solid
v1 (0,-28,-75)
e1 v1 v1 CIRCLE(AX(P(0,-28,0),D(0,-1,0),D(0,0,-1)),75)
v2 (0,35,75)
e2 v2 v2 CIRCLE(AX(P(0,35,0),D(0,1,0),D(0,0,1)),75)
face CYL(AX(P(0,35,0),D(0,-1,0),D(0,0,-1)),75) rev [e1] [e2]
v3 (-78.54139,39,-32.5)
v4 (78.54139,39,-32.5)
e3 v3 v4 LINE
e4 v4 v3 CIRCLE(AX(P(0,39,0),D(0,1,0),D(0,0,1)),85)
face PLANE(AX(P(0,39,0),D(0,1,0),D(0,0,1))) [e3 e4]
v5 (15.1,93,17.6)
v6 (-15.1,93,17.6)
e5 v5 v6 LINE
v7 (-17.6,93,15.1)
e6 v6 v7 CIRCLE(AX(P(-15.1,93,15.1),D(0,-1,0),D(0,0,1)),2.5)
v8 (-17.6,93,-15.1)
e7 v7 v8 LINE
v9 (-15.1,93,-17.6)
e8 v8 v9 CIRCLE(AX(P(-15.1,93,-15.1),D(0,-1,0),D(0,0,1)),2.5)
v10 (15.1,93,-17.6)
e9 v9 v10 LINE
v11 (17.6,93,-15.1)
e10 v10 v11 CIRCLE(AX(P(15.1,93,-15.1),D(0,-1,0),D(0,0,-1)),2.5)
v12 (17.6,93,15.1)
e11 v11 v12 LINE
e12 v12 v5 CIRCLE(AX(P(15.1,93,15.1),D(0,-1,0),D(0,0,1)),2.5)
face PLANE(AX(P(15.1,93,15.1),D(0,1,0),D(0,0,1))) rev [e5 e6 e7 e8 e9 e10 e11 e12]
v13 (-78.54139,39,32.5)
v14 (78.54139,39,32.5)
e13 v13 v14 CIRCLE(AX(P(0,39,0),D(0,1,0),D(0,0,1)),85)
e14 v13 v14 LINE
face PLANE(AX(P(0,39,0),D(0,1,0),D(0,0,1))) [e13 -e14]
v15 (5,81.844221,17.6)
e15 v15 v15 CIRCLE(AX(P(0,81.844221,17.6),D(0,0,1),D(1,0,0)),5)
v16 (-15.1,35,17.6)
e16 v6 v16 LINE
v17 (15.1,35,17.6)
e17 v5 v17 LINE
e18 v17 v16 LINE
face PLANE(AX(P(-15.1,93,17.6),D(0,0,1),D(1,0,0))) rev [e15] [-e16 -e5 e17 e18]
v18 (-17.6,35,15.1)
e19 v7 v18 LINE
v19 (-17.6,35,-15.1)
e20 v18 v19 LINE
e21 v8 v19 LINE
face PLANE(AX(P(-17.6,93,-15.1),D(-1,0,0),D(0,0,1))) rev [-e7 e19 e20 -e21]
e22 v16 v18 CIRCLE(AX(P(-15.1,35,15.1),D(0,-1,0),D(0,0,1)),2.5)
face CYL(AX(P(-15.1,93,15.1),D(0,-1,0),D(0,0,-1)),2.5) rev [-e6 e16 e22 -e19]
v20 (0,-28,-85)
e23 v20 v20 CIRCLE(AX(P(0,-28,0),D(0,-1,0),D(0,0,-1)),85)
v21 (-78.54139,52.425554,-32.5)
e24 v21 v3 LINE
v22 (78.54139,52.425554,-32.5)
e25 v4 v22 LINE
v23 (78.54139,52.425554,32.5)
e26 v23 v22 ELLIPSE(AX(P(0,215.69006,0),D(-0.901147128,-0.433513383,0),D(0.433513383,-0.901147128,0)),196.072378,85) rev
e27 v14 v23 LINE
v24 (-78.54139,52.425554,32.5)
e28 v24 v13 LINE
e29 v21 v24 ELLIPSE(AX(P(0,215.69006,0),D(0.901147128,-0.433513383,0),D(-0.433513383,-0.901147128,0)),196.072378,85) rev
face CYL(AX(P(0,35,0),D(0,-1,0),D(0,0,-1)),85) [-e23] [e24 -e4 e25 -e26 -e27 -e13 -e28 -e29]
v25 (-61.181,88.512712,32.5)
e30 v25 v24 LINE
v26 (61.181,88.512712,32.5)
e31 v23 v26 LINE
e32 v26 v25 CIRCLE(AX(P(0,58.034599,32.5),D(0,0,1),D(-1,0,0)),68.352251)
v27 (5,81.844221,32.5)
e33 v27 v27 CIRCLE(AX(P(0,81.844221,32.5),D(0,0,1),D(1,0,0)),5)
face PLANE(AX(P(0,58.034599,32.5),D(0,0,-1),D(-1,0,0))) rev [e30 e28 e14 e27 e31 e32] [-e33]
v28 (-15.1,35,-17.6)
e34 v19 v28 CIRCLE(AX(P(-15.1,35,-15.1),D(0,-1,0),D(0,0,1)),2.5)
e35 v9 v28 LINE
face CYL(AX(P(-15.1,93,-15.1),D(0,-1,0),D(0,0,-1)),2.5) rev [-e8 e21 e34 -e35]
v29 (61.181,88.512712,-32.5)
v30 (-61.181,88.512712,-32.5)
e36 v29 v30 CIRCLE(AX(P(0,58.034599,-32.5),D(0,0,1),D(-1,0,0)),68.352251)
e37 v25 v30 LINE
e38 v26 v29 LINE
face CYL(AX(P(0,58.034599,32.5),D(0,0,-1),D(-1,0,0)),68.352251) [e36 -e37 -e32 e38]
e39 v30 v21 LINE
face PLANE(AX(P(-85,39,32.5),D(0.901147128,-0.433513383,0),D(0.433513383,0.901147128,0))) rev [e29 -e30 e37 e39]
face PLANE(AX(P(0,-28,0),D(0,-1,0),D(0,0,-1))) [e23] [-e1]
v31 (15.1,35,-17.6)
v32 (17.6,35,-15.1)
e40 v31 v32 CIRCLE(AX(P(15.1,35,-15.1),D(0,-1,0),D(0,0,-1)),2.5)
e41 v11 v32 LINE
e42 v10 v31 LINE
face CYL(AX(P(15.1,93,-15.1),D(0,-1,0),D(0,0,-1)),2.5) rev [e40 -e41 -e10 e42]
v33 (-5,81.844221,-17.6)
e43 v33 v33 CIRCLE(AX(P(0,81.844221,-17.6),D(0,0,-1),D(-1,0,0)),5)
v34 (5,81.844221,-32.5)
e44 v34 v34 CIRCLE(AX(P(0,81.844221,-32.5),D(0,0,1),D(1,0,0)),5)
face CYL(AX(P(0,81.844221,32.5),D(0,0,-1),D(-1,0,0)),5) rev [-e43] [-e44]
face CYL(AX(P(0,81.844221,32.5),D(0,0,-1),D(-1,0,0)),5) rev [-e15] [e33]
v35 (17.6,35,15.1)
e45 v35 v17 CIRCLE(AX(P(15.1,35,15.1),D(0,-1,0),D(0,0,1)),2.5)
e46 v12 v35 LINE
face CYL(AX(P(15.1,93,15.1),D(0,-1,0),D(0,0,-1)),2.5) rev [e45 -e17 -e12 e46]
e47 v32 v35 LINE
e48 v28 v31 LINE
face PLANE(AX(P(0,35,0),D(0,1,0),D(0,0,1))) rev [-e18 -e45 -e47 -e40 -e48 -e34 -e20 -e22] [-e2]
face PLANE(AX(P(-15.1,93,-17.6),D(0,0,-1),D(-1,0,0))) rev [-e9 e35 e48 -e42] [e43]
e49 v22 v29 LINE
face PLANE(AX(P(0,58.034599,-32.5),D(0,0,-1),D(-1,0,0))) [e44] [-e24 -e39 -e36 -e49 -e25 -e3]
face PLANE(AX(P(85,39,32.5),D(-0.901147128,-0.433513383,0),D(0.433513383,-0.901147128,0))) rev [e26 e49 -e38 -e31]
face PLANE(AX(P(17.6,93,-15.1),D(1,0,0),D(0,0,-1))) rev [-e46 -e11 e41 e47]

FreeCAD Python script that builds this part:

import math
import FreeCAD as App
import Part
import Sketcher
Q = App.Units.Quantity

doc = App.newDocument("Part")
body = doc.addObject("PartDesign::Body", "Body")

# Sketch on XZ plane
sketch1 = body.newObject("Sketcher::SketchObject", "Sketch")
sketch1.AttachmentSupport = (doc.getObject("XZ_Plane"), [""])
sketch1.MapMode = "FlatFace"
sketch1.addGeometry([
    Part.Circle(App.Vector(0, 0, 0), App.Vector(0, 0, 1), 85),
    Part.Circle(App.Vector(0, 0, 0), App.Vector(0, 0, 1), 75),
], False)
sketch1.addConstraint([
    Sketcher.Constraint("Coincident", 0, 3, -1, 1),
    Sketcher.Constraint("Coincident", 1, 3, -1, 1),
    Sketcher.Constraint("Diameter", 0, Q("170 mm")),
    Sketcher.Constraint("Diameter", 1, Q("150 mm")),
])
pad1 = body.newObject("PartDesign::Pad", "Pad")
pad1.Profile = sketch1
pad1.Length = 35
pad1.Reversed = True

# Sketch on XZ plane
sketch2 = body.newObject("Sketcher::SketchObject", "Sketch001")
sketch2.AttachmentSupport = (doc.getObject("XZ_Plane"), [""])
sketch2.MapMode = "FlatFace"
sketch2.AttachmentOffset = App.Placement(App.Vector(0, 0, -35), App.Rotation())
sketch2.addGeometry(Part.Circle(App.Vector(0, 0, 0), App.Vector(0, 0, 1), 85), False)
sketch2.addConstraint([
    Sketcher.Constraint("Coincident", 0, 3, -1, 1),
    Sketcher.Constraint("Diameter", 0, Q("170 mm")),
])
pad2 = body.newObject("PartDesign::Pad", "Pad001")
pad2.Profile = sketch2
pad2.Length = 4
pad2.Reversed = True

# Sketch on XY plane
sketch3 = body.newObject("Sketcher::SketchObject", "Sketch002")
sketch3.AttachmentSupport = (doc.getObject("XY_Plane"), [""])
sketch3.MapMode = "FlatFace"
sketch3.addGeometry([
    Part.LineSegment(App.Vector(-61, 89, 0), App.Vector(-85, 39, 0)),  # 0
    Part.LineSegment(App.Vector(-85, 39, 0), App.Vector(85, 39, 0)),  # 1
    Part.LineSegment(App.Vector(85, 39, 0), App.Vector(61, 89, 0)),  # 2
    Part.ArcOfCircle(Part.Circle(App.Vector(0, 58, 0), App.Vector(0, 0, 1), 68), math.radians(26), math.radians(154)),  # 3
    Part.Circle(App.Vector(0, 82, 0), App.Vector(0, 0, 1), 5),  # 4
], False)
sketch3.addConstraint([
    Sketcher.Constraint("Coincident", 0, 2, 1, 1),
    Sketcher.Constraint("Coincident", 1, 2, 2, 1),
    Sketcher.Constraint("Coincident", 2, 2, 3, 1),
    Sketcher.Constraint("Coincident", 3, 2, 0, 1),
    Sketcher.Constraint("Horizontal", 1),
    Sketcher.Constraint("Symmetric", 2, 2, 3, 2, -2),
    Sketcher.Constraint("PointOnObject", 4, 3, -2),
    Sketcher.Constraint("Equal", 0, 2),
    Sketcher.Constraint("Diameter", 4, Q("10 mm")),
    Sketcher.Constraint("DistanceX", 1, 1, 1, 2, Q("170 mm")),
    Sketcher.Constraint("DistanceY", -1, 1, 0, 2, Q("39 mm")),
    Sketcher.Constraint("Radius", 3, Q("68.352251 mm")),
    Sketcher.Constraint("DistanceX", -1, 1, 2, 2, Q("61.181 mm")),
    Sketcher.Constraint("DistanceY", -1, 1, 3, 3, Q("58.034599 mm")),
    Sketcher.Constraint("DistanceY", -1, 1, 4, 3, Q("81.844221 mm")),
])
pad3 = body.newObject("PartDesign::Pad", "Pad002")
pad3.Profile = sketch3
pad3.Length = 65
pad3.Midplane = True

# Sketch on XZ plane
sketch4 = body.newObject("Sketcher::SketchObject", "Sketch003")
sketch4.AttachmentSupport = (doc.getObject("XZ_Plane"), [""])
sketch4.MapMode = "FlatFace"
sketch4.AttachmentOffset = App.Placement(App.Vector(0, 0, -39), App.Rotation())
sketch4.addGeometry([
    Part.Circle(App.Vector(0, 0, 0), App.Vector(0, 0, 1), 96),
    Part.Circle(App.Vector(0, 0, 0), App.Vector(0, 0, 1), 85),
], False)
sketch4.addConstraint([
    Sketcher.Constraint("Coincident", 0, 3, -1, 1),
    Sketcher.Constraint("Coincident", 1, 3, -1, 1),
    Sketcher.Constraint("Diameter", 1, Q("170 mm")),
    Sketcher.Constraint("Diameter", 0, Q("191.477475 mm")),
])
pocket1 = body.newObject("PartDesign::Pocket", "Pocket")
pocket1.Profile = sketch4
pocket1.Length = 67

# Sketch on XZ plane
sketch5 = body.newObject("Sketcher::SketchObject", "Sketch004")
sketch5.AttachmentSupport = (doc.getObject("XZ_Plane"), [""])
sketch5.MapMode = "FlatFace"
sketch5.AttachmentOffset = App.Placement(App.Vector(0, 0, -35), App.Rotation())
sketch5.addGeometry([
    Part.LineSegment(App.Vector(-15.1, -17.6, 0), App.Vector(15.1, -17.6, 0)),  # 0
    Part.ArcOfCircle(Part.Circle(App.Vector(15.1, -15.1, 0), App.Vector(0, 0, 1), 2.5), math.radians(-90), math.radians(0)),  # 1
    Part.LineSegment(App.Vector(17.6, -15.1, 0), App.Vector(17.6, 15.1, 0)),  # 2
    Part.ArcOfCircle(Part.Circle(App.Vector(15.1, 15.1, 0), App.Vector(0, 0, 1), 2.5), math.radians(0), math.radians(90)),  # 3
    Part.LineSegment(App.Vector(15.1, 17.6, 0), App.Vector(-15.1, 17.6, 0)),  # 4
    Part.ArcOfCircle(Part.Circle(App.Vector(-15.1, 15.1, 0), App.Vector(0, 0, 1), 2.5), math.radians(90), math.radians(180)),  # 5
    Part.LineSegment(App.Vector(-17.6, 15.1, 0), App.Vector(-17.6, -15.1, 0)),  # 6
    Part.ArcOfCircle(Part.Circle(App.Vector(-15.1, -15.1, 0), App.Vector(0, 0, 1), 2.5), math.radians(180), math.radians(270)),  # 7
], False)
sketch5.addConstraint([
    Sketcher.Constraint("Tangent", 0, 2, 1, 1),
    Sketcher.Constraint("Tangent", 1, 2, 2, 1),
    Sketcher.Constraint("Tangent", 2, 2, 3, 1),
    Sketcher.Constraint("Tangent", 3, 2, 4, 1),
    Sketcher.Constraint("Tangent", 4, 2, 5, 1),
    Sketcher.Constraint("Tangent", 5, 2, 6, 1),
    Sketcher.Constraint("Tangent", 6, 2, 7, 1),
    Sketcher.Constraint("Tangent", 7, 2, 0, 1),
    Sketcher.Constraint("Horizontal", 0),
    Sketcher.Constraint("Vertical", 2),
    Sketcher.Constraint("Horizontal", 4),
    Sketcher.Constraint("Vertical", 6),
    Sketcher.Constraint("Equal", 1, 3),
    Sketcher.Constraint("Equal", 3, 5),
    Sketcher.Constraint("Equal", 5, 7),
    Sketcher.Constraint("Symmetric", 1, 3, 5, 3, -1, 1),
    Sketcher.Constraint("Equal", 4, 2),
    Sketcher.Constraint("Radius", 1, Q("2.5 mm")),
    Sketcher.Constraint("DistanceX", 0, 1, 0, 2, Q("30.2 mm")),
])
pocket2 = body.newObject("PartDesign::Pocket", "Pocket001")
pocket2.Profile = sketch5
pocket2.Length = 58

# Sketch on XZ plane
sketch6 = body.newObject("Sketcher::SketchObject", "Sketch005")
sketch6.AttachmentSupport = (doc.getObject("XZ_Plane"), [""])
sketch6.MapMode = "FlatFace"
sketch6.addGeometry([
    Part.Circle(App.Vector(0, 0, 0), App.Vector(0, 0, 1), 85),
    Part.Circle(App.Vector(0, 0, 0), App.Vector(0, 0, 1), 75),
], False)
sketch6.addConstraint([
    Sketcher.Constraint("Coincident", 0, 3, -1, 1),
    Sketcher.Constraint("Coincident", 1, 3, -1, 1),
    Sketcher.Constraint("Diameter", 0, Q("170 mm")),
    Sketcher.Constraint("Diameter", 1, Q("150 mm")),
])
pad4 = body.newObject("PartDesign::Pad", "Pad003")
pad4.Profile = sketch6
pad4.Length = 28

doc.recompute()
